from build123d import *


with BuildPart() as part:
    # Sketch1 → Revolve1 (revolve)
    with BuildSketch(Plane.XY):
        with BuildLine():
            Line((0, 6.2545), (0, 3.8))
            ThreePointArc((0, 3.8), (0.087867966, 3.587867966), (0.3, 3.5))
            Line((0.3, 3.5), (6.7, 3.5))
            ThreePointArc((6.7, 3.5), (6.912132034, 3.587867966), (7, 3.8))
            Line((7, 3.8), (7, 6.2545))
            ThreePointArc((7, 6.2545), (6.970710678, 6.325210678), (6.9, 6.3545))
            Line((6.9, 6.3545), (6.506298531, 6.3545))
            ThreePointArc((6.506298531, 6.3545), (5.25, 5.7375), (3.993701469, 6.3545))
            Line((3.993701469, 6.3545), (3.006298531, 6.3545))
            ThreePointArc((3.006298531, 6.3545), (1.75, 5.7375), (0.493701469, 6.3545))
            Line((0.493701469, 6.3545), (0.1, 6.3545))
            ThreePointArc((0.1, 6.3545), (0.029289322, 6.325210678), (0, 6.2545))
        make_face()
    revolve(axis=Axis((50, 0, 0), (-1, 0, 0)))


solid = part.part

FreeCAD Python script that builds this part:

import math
import FreeCAD as App
import Part
import Sketcher

V = App.Vector

doc = App.newDocument("Part")
params = doc.addObject("Spreadsheet::Sheet", "Params")
for row, (alias, value) in enumerate([
    ("sketch1_radius", "0.3 mm"),
    ("sketch1_radius2", "0.1 mm"),
    ("sketch1_width", "6.4 mm"),
    ("revolution_angle", "360 deg"),
], start=1):
    params.set(f"A{row}", alias)
    params.set(f"B{row}", "=" + value)
    params.setAlias(f"B{row}", alias)

body = doc.addObject("PartDesign::Body", "Body")

sketch1 = body.newObject("Sketcher::SketchObject", "Sketch")
sketch1.AttachmentSupport = (doc.getObject("XY_Plane"), [""])
sketch1.MapMode = "FlatFace"
sketch1.addGeometry(Part.LineSegment(V(0, 6.25, 0), V(0, 3.8, 0)), False)
sketch1.addGeometry(Part.ArcOfCircle(Part.Circle(V(0.3, 3.8, 0), V(0, 0, 1), 0.3), math.radians(-180), math.radians(-90)), False)
sketch1.addGeometry(Part.LineSegment(V(0.3, 3.5, 0), V(6.7, 3.5, 0)), False)
sketch1.addGeometry(Part.ArcOfCircle(Part.Circle(V(6.7, 3.8, 0), V(0, 0, 1), 0.3), math.radians(-90), math.radians(0)), False)
sketch1.addGeometry(Part.LineSegment(V(7, 3.8, 0), V(7, 6.25, 0)), False)
sketch1.addGeometry(Part.ArcOfCircle(Part.Circle(V(6.9, 6.25, 0), V(0, 0, 1), 0.1), math.radians(0), math.radians(90)), False)
sketch1.addGeometry(Part.LineSegment(V(6.9, 6.35, 0), V(6.51, 6.35, 0)), False)
sketch1.addGeometry(Part.ArcOfCircle(Part.Circle(V(5.25, 7.32, 0), V(0, 0, 1), 1.59), math.radians(-142), math.radians(-38)), False)
sketch1.addGeometry(Part.LineSegment(V(3.99, 6.35, 0), V(3.01, 6.35, 0)), False)
sketch1.addGeometry(Part.ArcOfCircle(Part.Circle(V(1.75, 7.32, 0), V(0, 0, 1), 1.59), math.radians(-142), math.radians(-38)), False)
sketch1.addGeometry(Part.LineSegment(V(0.49, 6.35, 0), V(0.1, 6.35, 0)), False)
sketch1.addGeometry(Part.ArcOfCircle(Part.Circle(V(0.1, 6.25, 0), V(0, 0, 1), 0.1), math.radians(90), math.radians(180)), False)
sketch1.addConstraint(Sketcher.Constraint("Tangent", 0, 2, 1, 1))
sketch1.addConstraint(Sketcher.Constraint("Tangent", 1, 2, 2, 1))
sketch1.addConstraint(Sketcher.Constraint("Tangent", 2, 2, 3, 1))
sketch1.addConstraint(Sketcher.Constraint("Tangent", 3, 2, 4, 1))
sketch1.addConstraint(Sketcher.Constraint("Tangent", 4, 2, 5, 1))
sketch1.addConstraint(Sketcher.Constraint("Tangent", 5, 2, 6, 1))
sketch1.addConstraint(Sketcher.Constraint("Coincident", 6, 2, 7, 2))
sketch1.addConstraint(Sketcher.Constraint("Coincident", 7, 1, 8, 1))
sketch1.addConstraint(Sketcher.Constraint("Coincident", 8, 2, 9, 2))
sketch1.addConstraint(Sketcher.Constraint("Coincident", 9, 1, 10, 1))
sketch1.addConstraint(Sketcher.Constraint("Tangent", 10, 2, 11, 1))
sketch1.addConstraint(Sketcher.Constraint("Tangent", 11, 2, 0, 1))
sketch1.addConstraint(Sketcher.Constraint("Vertical", 0))
sketch1.addConstraint(Sketcher.Constraint("Horizontal", 2))
sketch1.addConstraint(Sketcher.Constraint("Vertical", 4))
sketch1.addConstraint(Sketcher.Constraint("Horizontal", 6))
sketch1.addConstraint(Sketcher.Constraint("Horizontal", 8))
sketch1.addConstraint(Sketcher.Constraint("Horizontal", 10))
sketch1.addConstraint(Sketcher.Constraint("Equal", 1, 3))
sketch1.addConstraint(Sketcher.Constraint("Equal", 7, 9))
sketch1.addConstraint(Sketcher.Constraint("Equal", 5, 11))
sketch1.addConstraint(Sketcher.Constraint("PointOnObject", 0, 2, -2))
sketch1.addConstraint(Sketcher.Constraint("Horizontal", 7, 3, 9, 3))
sketch1.addConstraint(Sketcher.Constraint("Horizontal", 5, 3, 11, 3))
sketch1.addConstraint(Sketcher.Constraint("Horizontal", 6, 2, 7, 1))
sketch1.addConstraint(Sketcher.Constraint("Equal", 6, 10))
sketch1.addConstraint(Sketcher.Constraint("Radius", 1, 0.3))
sketch1.addConstraint(Sketcher.Constraint("Radius", 5, 0.1))
sketch1.addConstraint(Sketcher.Constraint("DistanceX", 2, 1, 2, 2, 6.4))
sketch1.addConstraint(Sketcher.Constraint("DistanceY", -1, 1, 1, 3, 3.8))
sketch1.addConstraint(Sketcher.Constraint("Radius", 7, 1.5875))
sketch1.addConstraint(Sketcher.Constraint("DistanceX", 9, 3, 7, 3, 3.5))
sketch1.addConstraint(Sketcher.Constraint("DistanceX", 6, 2, 6, 1, 0.393701))
sketch1.addConstraint(Sketcher.Constraint("DistanceY", 0, 2, 0, 1, 2.4545))
sketch1.setExpression("Constraints[26]", "Params.sketch1_radius")
sketch1.setExpression("Constraints[27]", "Params.sketch1_radius2")
sketch1.setExpression("Constraints[28]", "Params.sketch1_width")
revolution = body.newObject("PartDesign::Revolution", "Revolution")
revolution.Profile = sketch1
revolution.ReferenceAxis = (sketch1, ["H_Axis"])
revolution.setExpression("Angle", "Params.revolution_angle")

doc.recompute()
